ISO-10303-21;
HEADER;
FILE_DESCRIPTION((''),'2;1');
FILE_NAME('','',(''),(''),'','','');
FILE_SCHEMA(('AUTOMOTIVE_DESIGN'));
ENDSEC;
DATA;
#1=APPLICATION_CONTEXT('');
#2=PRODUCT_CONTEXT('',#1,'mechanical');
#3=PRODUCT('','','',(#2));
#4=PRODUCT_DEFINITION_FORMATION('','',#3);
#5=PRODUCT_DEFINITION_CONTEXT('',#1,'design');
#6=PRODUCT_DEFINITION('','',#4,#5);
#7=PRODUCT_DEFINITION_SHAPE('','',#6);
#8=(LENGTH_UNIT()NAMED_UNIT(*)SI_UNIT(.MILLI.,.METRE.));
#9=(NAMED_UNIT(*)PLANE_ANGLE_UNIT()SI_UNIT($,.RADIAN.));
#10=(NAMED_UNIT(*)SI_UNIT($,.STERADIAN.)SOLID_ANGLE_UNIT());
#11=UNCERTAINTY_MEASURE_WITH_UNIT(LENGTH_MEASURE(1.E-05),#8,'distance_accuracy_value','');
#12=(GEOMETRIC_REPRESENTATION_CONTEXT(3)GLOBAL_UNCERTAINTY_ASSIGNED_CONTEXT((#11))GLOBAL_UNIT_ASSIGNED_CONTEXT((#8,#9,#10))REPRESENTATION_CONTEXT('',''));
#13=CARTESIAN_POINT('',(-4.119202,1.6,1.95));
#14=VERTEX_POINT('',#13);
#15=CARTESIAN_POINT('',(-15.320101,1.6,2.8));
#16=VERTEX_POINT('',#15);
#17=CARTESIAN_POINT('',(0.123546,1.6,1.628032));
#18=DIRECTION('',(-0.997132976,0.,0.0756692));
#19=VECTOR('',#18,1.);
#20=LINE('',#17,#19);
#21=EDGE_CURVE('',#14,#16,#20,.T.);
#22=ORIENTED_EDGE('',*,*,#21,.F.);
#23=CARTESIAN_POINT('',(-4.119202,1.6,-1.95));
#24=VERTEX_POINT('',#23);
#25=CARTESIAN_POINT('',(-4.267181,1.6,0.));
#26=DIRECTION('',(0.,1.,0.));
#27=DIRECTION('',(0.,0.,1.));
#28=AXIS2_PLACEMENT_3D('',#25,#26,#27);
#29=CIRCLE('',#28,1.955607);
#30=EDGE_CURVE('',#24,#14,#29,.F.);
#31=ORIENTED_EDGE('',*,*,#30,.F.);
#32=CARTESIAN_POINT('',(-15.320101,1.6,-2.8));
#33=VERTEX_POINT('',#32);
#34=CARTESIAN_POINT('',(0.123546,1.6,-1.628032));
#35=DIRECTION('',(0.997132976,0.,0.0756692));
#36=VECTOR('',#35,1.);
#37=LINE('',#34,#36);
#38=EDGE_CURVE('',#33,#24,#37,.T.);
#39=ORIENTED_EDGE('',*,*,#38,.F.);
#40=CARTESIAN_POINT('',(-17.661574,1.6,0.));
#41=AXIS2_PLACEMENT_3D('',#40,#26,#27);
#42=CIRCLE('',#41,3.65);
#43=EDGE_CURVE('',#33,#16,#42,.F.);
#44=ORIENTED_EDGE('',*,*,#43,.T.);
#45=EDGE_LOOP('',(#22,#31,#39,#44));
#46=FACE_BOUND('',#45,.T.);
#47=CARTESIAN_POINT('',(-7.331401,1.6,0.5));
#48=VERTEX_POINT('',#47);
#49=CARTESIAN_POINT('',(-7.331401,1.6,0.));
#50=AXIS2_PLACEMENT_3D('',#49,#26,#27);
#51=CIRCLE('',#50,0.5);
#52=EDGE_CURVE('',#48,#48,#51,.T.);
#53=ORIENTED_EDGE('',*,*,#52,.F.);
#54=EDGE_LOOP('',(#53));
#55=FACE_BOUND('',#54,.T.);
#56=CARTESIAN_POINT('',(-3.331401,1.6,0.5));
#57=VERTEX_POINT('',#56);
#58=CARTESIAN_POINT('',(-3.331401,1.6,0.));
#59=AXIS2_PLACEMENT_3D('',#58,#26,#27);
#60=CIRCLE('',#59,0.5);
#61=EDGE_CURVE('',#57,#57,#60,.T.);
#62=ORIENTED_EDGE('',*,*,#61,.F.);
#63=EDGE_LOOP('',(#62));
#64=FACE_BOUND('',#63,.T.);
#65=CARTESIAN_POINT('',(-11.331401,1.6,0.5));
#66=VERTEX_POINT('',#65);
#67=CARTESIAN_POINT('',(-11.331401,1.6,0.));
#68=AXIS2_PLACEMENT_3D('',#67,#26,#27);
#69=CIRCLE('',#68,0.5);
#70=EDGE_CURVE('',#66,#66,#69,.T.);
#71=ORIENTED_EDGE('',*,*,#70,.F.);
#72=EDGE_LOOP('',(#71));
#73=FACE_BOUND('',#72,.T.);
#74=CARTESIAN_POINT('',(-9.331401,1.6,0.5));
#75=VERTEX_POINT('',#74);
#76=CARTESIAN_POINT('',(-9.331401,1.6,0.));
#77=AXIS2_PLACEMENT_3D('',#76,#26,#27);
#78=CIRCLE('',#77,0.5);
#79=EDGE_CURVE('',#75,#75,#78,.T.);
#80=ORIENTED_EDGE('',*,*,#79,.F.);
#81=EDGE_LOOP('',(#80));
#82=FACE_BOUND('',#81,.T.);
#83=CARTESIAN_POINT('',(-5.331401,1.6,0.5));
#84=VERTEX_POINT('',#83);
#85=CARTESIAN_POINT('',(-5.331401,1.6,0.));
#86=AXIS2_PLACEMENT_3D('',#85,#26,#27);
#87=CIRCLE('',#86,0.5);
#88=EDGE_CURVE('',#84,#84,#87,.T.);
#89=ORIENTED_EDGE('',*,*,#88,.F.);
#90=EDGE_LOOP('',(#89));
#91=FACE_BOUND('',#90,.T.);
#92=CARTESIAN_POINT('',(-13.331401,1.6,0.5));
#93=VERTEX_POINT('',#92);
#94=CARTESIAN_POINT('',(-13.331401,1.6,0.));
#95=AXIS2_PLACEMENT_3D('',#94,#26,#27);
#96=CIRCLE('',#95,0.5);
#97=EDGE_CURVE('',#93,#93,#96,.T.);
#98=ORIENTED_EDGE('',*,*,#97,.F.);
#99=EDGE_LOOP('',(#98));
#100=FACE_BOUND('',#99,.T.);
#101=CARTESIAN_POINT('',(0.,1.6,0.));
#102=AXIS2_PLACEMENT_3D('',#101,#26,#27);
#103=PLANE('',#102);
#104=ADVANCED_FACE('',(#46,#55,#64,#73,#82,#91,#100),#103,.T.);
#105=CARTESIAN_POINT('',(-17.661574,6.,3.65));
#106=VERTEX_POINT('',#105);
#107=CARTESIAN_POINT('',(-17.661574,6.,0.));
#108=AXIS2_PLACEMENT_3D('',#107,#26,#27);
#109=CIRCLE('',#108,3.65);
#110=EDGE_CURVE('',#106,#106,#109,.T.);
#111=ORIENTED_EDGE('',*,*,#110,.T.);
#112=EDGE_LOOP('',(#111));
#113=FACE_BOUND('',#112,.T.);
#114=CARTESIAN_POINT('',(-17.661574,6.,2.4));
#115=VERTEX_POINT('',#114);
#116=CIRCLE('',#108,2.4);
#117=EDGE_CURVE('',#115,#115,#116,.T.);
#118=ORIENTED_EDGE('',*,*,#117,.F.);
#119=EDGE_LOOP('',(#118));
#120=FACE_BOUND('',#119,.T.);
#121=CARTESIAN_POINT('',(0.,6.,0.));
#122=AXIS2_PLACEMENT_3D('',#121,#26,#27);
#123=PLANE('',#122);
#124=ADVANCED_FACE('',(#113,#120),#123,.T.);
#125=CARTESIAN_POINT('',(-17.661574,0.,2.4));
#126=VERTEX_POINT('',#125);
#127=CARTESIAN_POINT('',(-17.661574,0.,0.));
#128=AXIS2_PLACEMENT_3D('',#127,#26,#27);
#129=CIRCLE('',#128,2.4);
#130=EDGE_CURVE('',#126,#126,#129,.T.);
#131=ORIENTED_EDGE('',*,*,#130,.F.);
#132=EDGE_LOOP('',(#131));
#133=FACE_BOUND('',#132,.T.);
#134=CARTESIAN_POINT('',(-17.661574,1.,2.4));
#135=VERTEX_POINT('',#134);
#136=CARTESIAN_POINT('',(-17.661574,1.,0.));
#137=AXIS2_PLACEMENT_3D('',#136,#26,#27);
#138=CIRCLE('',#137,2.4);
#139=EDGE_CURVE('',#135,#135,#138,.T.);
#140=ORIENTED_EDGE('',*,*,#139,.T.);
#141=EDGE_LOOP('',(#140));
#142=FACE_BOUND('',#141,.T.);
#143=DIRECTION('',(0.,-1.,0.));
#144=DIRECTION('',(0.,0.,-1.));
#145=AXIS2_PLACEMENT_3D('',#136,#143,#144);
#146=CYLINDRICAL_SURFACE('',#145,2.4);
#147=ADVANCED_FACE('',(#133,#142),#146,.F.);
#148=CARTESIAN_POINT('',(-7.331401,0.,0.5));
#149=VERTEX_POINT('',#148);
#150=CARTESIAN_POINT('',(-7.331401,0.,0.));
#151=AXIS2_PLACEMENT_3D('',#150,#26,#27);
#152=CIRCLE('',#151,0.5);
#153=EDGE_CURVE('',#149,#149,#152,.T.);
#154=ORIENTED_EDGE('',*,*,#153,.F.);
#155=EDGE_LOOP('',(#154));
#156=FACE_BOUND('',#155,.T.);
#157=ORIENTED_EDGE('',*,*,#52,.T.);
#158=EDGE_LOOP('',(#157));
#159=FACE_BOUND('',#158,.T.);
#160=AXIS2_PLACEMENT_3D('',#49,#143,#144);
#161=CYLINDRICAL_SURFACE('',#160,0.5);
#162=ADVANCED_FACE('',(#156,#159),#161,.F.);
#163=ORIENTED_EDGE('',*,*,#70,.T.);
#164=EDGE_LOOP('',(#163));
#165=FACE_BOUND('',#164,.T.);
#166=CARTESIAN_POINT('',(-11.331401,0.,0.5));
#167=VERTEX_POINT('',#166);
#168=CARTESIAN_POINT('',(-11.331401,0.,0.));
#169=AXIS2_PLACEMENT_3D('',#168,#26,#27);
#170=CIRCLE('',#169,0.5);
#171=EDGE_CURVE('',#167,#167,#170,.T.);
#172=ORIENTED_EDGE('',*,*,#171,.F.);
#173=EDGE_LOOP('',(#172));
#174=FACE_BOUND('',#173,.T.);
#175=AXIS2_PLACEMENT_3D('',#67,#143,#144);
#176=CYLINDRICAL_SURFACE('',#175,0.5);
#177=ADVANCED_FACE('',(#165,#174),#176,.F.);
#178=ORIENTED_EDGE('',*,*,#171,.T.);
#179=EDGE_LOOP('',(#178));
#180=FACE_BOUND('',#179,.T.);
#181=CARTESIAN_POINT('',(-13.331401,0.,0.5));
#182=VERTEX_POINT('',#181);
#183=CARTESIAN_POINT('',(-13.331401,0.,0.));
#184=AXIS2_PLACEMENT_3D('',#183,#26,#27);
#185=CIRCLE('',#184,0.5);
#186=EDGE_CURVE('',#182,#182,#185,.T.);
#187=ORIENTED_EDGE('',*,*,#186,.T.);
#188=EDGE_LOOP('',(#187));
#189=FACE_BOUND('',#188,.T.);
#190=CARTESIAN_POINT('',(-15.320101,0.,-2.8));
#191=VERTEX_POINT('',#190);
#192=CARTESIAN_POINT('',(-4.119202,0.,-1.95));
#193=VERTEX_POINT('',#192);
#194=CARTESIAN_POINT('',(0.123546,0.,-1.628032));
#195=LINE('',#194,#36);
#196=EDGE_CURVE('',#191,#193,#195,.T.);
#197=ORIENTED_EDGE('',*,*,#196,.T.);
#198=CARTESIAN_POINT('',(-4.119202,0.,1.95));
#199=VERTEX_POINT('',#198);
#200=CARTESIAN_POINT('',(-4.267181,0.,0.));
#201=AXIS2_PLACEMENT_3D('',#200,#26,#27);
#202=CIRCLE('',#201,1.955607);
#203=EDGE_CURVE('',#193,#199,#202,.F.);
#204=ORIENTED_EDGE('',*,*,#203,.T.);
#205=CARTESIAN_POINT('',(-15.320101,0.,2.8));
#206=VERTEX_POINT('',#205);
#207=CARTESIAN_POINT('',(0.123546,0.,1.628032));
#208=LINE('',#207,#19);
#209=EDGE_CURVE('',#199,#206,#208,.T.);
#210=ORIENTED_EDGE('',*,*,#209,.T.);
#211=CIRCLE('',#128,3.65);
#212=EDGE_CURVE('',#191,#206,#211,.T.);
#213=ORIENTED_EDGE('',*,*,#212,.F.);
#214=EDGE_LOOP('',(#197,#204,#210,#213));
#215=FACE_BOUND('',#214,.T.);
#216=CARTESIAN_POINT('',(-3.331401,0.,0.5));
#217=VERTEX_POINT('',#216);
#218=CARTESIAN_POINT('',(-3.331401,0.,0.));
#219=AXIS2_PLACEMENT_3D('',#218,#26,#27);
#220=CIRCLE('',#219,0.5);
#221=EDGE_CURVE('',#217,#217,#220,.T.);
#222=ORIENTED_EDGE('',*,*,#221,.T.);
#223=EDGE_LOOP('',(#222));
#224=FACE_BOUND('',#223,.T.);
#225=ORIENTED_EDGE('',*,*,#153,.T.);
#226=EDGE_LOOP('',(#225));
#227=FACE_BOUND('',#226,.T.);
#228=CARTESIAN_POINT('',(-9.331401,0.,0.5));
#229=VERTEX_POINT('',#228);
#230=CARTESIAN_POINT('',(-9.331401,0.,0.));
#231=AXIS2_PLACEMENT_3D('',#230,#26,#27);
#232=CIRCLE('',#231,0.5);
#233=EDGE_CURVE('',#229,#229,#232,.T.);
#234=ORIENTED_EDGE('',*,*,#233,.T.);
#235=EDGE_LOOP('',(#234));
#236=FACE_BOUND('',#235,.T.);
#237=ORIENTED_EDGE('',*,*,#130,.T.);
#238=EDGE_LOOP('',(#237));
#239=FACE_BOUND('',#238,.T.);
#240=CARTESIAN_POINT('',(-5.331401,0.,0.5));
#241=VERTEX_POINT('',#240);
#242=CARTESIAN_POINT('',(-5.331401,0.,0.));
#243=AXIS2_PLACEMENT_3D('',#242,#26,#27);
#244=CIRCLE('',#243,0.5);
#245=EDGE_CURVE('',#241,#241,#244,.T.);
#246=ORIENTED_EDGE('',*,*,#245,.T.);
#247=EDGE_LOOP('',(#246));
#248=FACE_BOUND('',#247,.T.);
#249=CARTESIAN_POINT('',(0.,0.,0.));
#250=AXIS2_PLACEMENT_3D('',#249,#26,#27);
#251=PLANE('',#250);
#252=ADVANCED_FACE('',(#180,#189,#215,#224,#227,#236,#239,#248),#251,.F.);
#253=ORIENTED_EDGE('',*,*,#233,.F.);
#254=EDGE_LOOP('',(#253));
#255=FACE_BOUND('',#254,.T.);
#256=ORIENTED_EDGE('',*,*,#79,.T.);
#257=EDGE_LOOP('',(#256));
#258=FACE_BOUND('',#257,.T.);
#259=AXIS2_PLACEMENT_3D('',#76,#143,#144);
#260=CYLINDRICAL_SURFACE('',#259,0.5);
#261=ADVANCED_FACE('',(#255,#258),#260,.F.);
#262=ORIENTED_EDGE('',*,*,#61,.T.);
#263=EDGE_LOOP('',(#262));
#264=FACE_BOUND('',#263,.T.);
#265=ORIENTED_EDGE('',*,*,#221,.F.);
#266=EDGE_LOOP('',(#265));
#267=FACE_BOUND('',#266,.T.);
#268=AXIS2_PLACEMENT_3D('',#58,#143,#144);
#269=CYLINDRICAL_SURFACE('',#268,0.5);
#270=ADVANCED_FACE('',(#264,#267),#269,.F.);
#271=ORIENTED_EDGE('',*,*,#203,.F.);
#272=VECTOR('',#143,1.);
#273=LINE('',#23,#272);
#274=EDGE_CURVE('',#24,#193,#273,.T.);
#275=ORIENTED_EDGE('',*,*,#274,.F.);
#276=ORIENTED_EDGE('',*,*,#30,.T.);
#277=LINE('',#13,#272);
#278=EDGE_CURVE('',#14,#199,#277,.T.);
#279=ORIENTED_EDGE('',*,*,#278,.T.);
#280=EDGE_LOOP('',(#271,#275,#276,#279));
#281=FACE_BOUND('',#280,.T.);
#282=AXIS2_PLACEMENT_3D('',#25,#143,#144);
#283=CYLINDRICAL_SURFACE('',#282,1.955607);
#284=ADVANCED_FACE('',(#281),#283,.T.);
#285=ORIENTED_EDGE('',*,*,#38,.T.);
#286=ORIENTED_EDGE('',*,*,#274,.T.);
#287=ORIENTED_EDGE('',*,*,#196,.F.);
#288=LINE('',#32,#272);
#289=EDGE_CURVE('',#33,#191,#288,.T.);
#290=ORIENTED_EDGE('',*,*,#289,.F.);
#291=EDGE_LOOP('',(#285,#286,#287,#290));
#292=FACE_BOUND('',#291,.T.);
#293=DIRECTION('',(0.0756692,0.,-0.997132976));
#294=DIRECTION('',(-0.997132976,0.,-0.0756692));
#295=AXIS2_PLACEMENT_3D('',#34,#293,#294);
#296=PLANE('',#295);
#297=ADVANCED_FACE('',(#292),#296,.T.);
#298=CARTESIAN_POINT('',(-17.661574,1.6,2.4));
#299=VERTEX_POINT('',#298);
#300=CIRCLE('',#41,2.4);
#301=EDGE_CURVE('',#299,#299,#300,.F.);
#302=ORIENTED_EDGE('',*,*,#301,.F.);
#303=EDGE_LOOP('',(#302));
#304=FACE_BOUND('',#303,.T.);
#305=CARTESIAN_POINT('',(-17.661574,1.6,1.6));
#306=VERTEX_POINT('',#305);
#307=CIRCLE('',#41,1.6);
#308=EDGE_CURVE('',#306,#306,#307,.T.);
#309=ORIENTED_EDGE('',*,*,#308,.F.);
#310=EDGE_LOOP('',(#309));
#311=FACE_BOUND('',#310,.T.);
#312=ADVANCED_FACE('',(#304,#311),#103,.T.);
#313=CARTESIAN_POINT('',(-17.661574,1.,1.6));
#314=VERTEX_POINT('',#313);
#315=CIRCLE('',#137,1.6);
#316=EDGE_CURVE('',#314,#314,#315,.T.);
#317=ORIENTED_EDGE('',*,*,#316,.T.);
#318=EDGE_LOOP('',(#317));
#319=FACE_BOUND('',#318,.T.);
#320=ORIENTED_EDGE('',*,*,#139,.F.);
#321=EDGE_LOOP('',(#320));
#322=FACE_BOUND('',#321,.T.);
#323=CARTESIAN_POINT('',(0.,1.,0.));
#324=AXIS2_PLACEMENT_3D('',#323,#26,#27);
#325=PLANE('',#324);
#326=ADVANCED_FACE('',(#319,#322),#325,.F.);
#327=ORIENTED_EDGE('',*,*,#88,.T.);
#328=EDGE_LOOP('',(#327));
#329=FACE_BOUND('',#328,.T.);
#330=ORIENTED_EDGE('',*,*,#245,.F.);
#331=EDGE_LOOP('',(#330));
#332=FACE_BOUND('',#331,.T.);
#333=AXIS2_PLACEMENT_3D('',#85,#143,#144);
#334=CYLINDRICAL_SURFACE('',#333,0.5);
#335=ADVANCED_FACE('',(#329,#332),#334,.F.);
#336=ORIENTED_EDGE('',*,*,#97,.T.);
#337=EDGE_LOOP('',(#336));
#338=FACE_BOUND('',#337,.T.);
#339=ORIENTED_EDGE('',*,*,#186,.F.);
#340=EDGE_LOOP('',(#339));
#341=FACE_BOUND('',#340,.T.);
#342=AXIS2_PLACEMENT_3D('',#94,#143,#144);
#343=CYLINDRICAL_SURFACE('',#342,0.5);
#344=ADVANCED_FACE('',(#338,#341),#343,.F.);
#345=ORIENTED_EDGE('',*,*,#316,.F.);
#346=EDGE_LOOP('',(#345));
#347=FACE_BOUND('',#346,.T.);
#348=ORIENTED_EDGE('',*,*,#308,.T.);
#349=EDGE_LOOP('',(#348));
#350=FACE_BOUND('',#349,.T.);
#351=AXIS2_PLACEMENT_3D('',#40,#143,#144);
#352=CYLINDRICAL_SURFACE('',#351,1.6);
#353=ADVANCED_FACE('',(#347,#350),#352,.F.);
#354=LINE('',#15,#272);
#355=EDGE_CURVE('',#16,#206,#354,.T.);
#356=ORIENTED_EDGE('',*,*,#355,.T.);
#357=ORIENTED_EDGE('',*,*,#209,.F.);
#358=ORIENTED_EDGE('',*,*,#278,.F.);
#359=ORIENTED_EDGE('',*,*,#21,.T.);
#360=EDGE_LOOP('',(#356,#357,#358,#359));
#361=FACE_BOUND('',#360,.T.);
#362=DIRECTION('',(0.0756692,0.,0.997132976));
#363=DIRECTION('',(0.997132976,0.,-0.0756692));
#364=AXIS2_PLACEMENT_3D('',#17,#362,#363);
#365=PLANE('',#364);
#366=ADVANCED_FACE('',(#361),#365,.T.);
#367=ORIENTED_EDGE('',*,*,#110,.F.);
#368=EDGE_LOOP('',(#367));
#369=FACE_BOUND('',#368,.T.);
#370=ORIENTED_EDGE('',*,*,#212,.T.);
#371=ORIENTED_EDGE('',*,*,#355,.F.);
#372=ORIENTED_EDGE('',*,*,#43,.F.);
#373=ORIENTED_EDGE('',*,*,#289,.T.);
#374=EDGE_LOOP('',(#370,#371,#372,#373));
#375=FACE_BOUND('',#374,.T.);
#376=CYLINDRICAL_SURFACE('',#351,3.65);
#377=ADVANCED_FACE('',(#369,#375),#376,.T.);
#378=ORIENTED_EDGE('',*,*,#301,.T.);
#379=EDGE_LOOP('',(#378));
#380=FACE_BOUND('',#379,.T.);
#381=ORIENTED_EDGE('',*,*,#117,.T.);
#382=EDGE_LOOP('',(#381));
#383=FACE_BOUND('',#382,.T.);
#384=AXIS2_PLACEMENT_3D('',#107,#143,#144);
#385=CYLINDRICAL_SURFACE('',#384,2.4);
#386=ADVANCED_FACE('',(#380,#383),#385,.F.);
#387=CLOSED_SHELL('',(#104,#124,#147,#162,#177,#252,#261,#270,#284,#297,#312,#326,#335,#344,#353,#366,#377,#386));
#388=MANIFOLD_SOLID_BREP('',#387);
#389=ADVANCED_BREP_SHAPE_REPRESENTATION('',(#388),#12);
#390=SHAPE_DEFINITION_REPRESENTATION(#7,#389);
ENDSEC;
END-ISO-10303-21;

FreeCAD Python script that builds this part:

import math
import FreeCAD as App
import Part
import Sketcher
Q = App.Units.Quantity

doc = App.newDocument("Part")
params = doc.addObject("Spreadsheet::Sheet", "Params")
for row, (alias, value) in enumerate([
    ("sketch1_diameter", "1 mm"),
    ("sketch1_diameter2", "3.2 mm"),
    ("sketch1_radius", "3.65 mm"),
    ("pad1_length", "1.6 mm"),
    ("sketch2_diameter", "7.3 mm"),
    ("sketch2_diameter2", "4.8 mm"),
    ("pad2_length", "6 mm"),
    ("sketch3_diameter", "4.8 mm"),
    ("sketch3_diameter2", "3.2 mm"),
    ("pocket1_length", "1 mm"),
], start=1):
    params.set(f"A{row}", alias)
    params.set(f"B{row}", "=" + value)
    params.setAlias(f"B{row}", alias)

body = doc.addObject("PartDesign::Body", "Body")

# Sketch on XZ plane
sketch1 = body.newObject("Sketcher::SketchObject", "Sketch")
sketch1.AttachmentSupport = (doc.getObject("XZ_Plane"), [""])
sketch1.MapMode = "FlatFace"
sketch1.addGeometry(Part.ArcOfCircle(Part.Circle(App.Vector(-17.7, 0, 0), App.Vector(0, 0, 1), 3.6), math.radians(50), math.radians(310)), False)
sketch1.addGeometry(Part.LineSegment(App.Vector(-15.3, 2.8, 0), App.Vector(-4.1, 1.9, 0)), False)
sketch1.addGeometry(Part.ArcOfCircle(Part.Circle(App.Vector(-4.3, 0, 0), App.Vector(0, 0, 1), 2), math.radians(-86), math.radians(86)), False)
sketch1.addGeometry(Part.LineSegment(App.Vector(-4.1, -1.9, 0), App.Vector(-15.3, -2.8, 0)), False)
sketch1.addGeometry(Part.Circle(App.Vector(-3.3, 0, 0), App.Vector(0, 0, 1), 0.5), False)
sketch1.addGeometry(Part.Circle(App.Vector(-5.3, 0, 0), App.Vector(0, 0, 1), 0.5), False)
sketch1.addGeometry(Part.Circle(App.Vector(-13.3, 0, 0), App.Vector(0, 0, 1), 0.5), False)
sketch1.addGeometry(Part.Circle(App.Vector(-11.3, 0, 0), App.Vector(0, 0, 1), 0.5), False)
sketch1.addGeometry(Part.Circle(App.Vector(-9.3, 0, 0), App.Vector(0, 0, 1), 0.5), False)
sketch1.addGeometry(Part.Circle(App.Vector(-7.3, 0, 0), App.Vector(0, 0, 1), 0.5), False)
sketch1.addGeometry(Part.Circle(App.Vector(-17.7, 0, 0), App.Vector(0, 0, 1), 1.6), False)
sketch1.addConstraint(Sketcher.Constraint("Coincident", 0, 1, 1, 1))
sketch1.addConstraint(Sketcher.Constraint("Tangent", 1, 2, 2, 2))
sketch1.addConstraint(Sketcher.Constraint("Tangent", 2, 1, 3, 1))
sketch1.addConstraint(Sketcher.Constraint("Coincident", 3, 2, 0, 2))
sketch1.addConstraint(Sketcher.Constraint("Coincident", 10, 3, 0, 3))
sketch1.addConstraint(Sketcher.Constraint("Equal", 4, 5))
sketch1.addConstraint(Sketcher.Constraint("Equal", 5, 6))
sketch1.addConstraint(Sketcher.Constraint("Equal", 6, 7))
sketch1.addConstraint(Sketcher.Constraint("Equal", 7, 8))
sketch1.addConstraint(Sketcher.Constraint("Equal", 8, 9))
sketch1.addConstraint(Sketcher.Constraint("Symmetric", 1, 2, 2, 1, -1))
sketch1.addConstraint(Sketcher.Constraint("PointOnObject", 0, 3, -1))
sketch1.addConstraint(Sketcher.Constraint("PointOnObject", 4, 3, -1))
sketch1.addConstraint(Sketcher.Constraint("PointOnObject", 5, 3, -1))
sketch1.addConstraint(Sketcher.Constraint("PointOnObject", 6, 3, -1))
sketch1.addConstraint(Sketcher.Constraint("PointOnObject", 7, 3, -1))
sketch1.addConstraint(Sketcher.Constraint("PointOnObject", 8, 3, -1))
sketch1.addConstraint(Sketcher.Constraint("PointOnObject", 9, 3, -1))
sketch1.addConstraint(Sketcher.Constraint("Diameter", 4, Q("1 mm")))
sketch1.addConstraint(Sketcher.Constraint("Diameter", 10, Q("3.2 mm")))
sketch1.addConstraint(Sketcher.Constraint("Radius", 0, Q("3.65 mm")))
sketch1.addConstraint(Sketcher.Constraint("DistanceX", 5, 3, 4, 3, Q("2 mm")))
sketch1.addConstraint(Sketcher.Constraint("DistanceX", 6, 3, 5, 3, Q("8 mm")))
sketch1.addConstraint(Sketcher.Constraint("DistanceX", 6, 3, 7, 3, Q("2 mm")))
sketch1.addConstraint(Sketcher.Constraint("DistanceX", 7, 3, 8, 3, Q("2 mm")))
sketch1.addConstraint(Sketcher.Constraint("DistanceX", 8, 3, 9, 3, Q("2 mm")))
sketch1.addConstraint(Sketcher.Constraint("DistanceY", -1, 1, 0, 1, Q("2.8 mm")))
sketch1.addConstraint(Sketcher.Constraint("DistanceY", 2, 1, 1, 2, Q("3.9 mm")))
sketch1.addConstraint(Sketcher.Constraint("DistanceX", 4, 3, -1, 1, Q("3.331401 mm")))
sketch1.addConstraint(Sketcher.Constraint("DistanceX", 0, 1, -1, 1, Q("15.320101 mm")))
sketch1.addConstraint(Sketcher.Constraint("DistanceX", 1, 2, 4, 3, Q("0.787801 mm")))
sketch1.setExpression("Constraints[18]", "Params.sketch1_diameter")
sketch1.setExpression("Constraints[19]", "Params.sketch1_diameter2")
sketch1.setExpression("Constraints[20]", "Params.sketch1_radius")
pad1 = body.newObject("PartDesign::Pad", "Pad")
pad1.Profile = sketch1
pad1.setExpression("Length", "Params.pad1_length")
pad1.Reversed = True

# Sketch on XZ plane
sketch2 = body.newObject("Sketcher::SketchObject", "Sketch001")
sketch2.AttachmentSupport = (doc.getObject("XZ_Plane"), [""])
sketch2.MapMode = "FlatFace"
sketch2.addGeometry(Part.Circle(App.Vector(-17.7, 0, 0), App.Vector(0, 0, 1), 3.6), False)
sketch2.addGeometry(Part.Circle(App.Vector(-17.7, 0, 0), App.Vector(0, 0, 1), 2.4), False)
sketch2.addConstraint(Sketcher.Constraint("Coincident", 1, 3, 0, 3))
sketch2.addConstraint(Sketcher.Constraint("PointOnObject", 0, 3, -1))
sketch2.addConstraint(Sketcher.Constraint("Diameter", 0, Q("7.3 mm")))
sketch2.addConstraint(Sketcher.Constraint("Diameter", 1, Q("4.8 mm")))
sketch2.addConstraint(Sketcher.Constraint("DistanceX", 0, 3, -1, 1, Q("17.661574 mm")))
sketch2.setExpression("Constraints[2]", "Params.sketch2_diameter")
sketch2.setExpression("Constraints[3]", "Params.sketch2_diameter2")
pad2 = body.newObject("PartDesign::Pad", "Pad001")
pad2.Profile = sketch2
pad2.setExpression("Length", "Params.pad2_length")
pad2.Reversed = True

# Sketch on XZ plane
sketch3 = body.newObject("Sketcher::SketchObject", "Sketch002")
sketch3.AttachmentSupport = (doc.getObject("XZ_Plane"), [""])
sketch3.MapMode = "FlatFace"
sketch3.addGeometry(Part.Circle(App.Vector(-17.7, 0, 0), App.Vector(0, 0, 1), 2.4), False)
sketch3.addGeometry(Part.Circle(App.Vector(-17.7, 0, 0), App.Vector(0, 0, 1), 1.6), False)
sketch3.addConstraint(Sketcher.Constraint("Coincident", 1, 3, 0, 3))
sketch3.addConstraint(Sketcher.Constraint("PointOnObject", 0, 3, -1))
sketch3.addConstraint(Sketcher.Constraint("Diameter", 0, Q("4.8 mm")))
sketch3.addConstraint(Sketcher.Constraint("Diameter", 1, Q("3.2 mm")))
sketch3.addConstraint(Sketcher.Constraint("DistanceX", 0, 3, -1, 1, Q("17.661574 mm")))
sketch3.setExpression("Constraints[2]", "Params.sketch3_diameter")
sketch3.setExpression("Constraints[3]", "Params.sketch3_diameter2")
pocket1 = body.newObject("PartDesign::Pocket", "Pocket")
pocket1.Profile = sketch3
pocket1.setExpression("Length", "Params.pocket1_length")

doc.recompute()
